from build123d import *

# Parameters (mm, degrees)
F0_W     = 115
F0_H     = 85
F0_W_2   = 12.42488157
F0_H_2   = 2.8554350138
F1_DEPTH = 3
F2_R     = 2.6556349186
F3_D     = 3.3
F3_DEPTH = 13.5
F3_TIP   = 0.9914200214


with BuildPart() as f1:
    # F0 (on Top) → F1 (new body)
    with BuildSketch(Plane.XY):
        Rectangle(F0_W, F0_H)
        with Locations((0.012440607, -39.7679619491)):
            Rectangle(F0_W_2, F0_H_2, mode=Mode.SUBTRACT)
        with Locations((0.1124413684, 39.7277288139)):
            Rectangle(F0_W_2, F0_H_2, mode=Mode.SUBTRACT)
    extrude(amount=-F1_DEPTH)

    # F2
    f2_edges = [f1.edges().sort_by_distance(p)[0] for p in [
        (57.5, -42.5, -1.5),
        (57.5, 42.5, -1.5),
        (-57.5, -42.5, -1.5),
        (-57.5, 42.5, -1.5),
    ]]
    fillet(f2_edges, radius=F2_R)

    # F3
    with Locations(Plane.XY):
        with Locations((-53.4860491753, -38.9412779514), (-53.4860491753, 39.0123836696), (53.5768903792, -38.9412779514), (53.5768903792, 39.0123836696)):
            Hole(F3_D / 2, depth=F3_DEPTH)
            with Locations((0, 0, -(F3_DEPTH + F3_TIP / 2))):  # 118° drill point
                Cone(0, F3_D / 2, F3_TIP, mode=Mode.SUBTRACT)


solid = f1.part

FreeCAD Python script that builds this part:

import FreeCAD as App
import Part
import Sketcher
from FreeCAD import Vector


def edges_at(feature, points):
    """Names of the edges that pass closest to the given points."""
    edges = feature.Shape.Edges
    near = lambda p: min(range(len(edges)), key=lambda i: edges[i].distToShape(Part.Vertex(*p))[0])
    return sorted({f"Edge{near(p) + 1}" for p in points})


def add_polygon(sketch, points):
    """Adds a closed chain of lines whose ends are joined by coincident constraints."""
    first, n = sketch.GeometryCount, len(points)
    for a, b in zip(points, points[1:] + points[:1]):
        sketch.addGeometry(Part.LineSegment(App.Vector(*a, 0), App.Vector(*b, 0)), False)
    for i in range(n):
        sketch.addConstraint(Sketcher.Constraint("Coincident", first + i, 2, first + (i + 1) % n, 1))

doc = App.newDocument("Part")
body = doc.addObject("PartDesign::Body", "Body")

# Sketch on XY plane
sketch1 = body.newObject("Sketcher::SketchObject", "Sketch")
sketch1.AttachmentSupport = (doc.getObject("XY_Plane"), [""])
sketch1.MapMode = "FlatFace"
add_polygon(sketch1, [(-57.5, 42.5), (-57.5, -42.5), (57.5, -42.5), (57.5, 42.5)])  # lines 0-3
add_polygon(sketch1, [(6.2, -41.2), (-6.2, -41.2), (-6.2, -38.3), (6.2, -38.3)])  # lines 4-7
add_polygon(sketch1, [(6.3, 38.3), (-6.1, 38.3), (-6.1, 41.2), (6.3, 41.2)])  # lines 8-11
sketch1.addConstraint(Sketcher.Constraint("Vertical", 0))
sketch1.addConstraint(Sketcher.Constraint("Horizontal", 1))
sketch1.addConstraint(Sketcher.Constraint("Vertical", 2))
sketch1.addConstraint(Sketcher.Constraint("Horizontal", 3))
sketch1.addConstraint(Sketcher.Constraint("Horizontal", 4))
sketch1.addConstraint(Sketcher.Constraint("Vertical", 5))
sketch1.addConstraint(Sketcher.Constraint("Horizontal", 6))
sketch1.addConstraint(Sketcher.Constraint("Vertical", 7))
sketch1.addConstraint(Sketcher.Constraint("Horizontal", 8))
sketch1.addConstraint(Sketcher.Constraint("Vertical", 9))
sketch1.addConstraint(Sketcher.Constraint("Horizontal", 10))
sketch1.addConstraint(Sketcher.Constraint("Vertical", 11))
sketch1.addConstraint(Sketcher.Constraint("Symmetric", 0, 2, 2, 2, -1, 1))
sketch1.addConstraint(Sketcher.Constraint("Equal", 6, 8))
sketch1.addConstraint(Sketcher.Constraint("Equal", 7, 9))
sketch1.addConstraint(Sketcher.Constraint("DistanceX", 1, 1, 1, 2, 115.0))
sketch1.addConstraint(Sketcher.Constraint("DistanceY", 0, 2, 0, 1, 85.0))
sketch1.addConstraint(Sketcher.Constraint("DistanceX", 4, 2, -1, 1, 6.2))
sketch1.addConstraint(Sketcher.Constraint("DistanceX", 8, 2, -1, 1, 6.099999))
sketch1.addConstraint(Sketcher.Constraint("DistanceX", 4, 2, 4, 1, 12.424882))
sketch1.addConstraint(Sketcher.Constraint("DistanceY", 5, 1, 5, 2, 2.855435))
sketch1.addConstraint(Sketcher.Constraint("DistanceY", 4, 2, -1, 1, 41.195679))
sketch1.addConstraint(Sketcher.Constraint("DistanceY", -1, 1, 8, 2, 38.300011))
pad1 = body.newObject("PartDesign::Pad", "Pad")
pad1.Profile = sketch1
pad1.Length = 3
pad1.Reversed = True
doc.recompute()

fillet = body.newObject("PartDesign::Fillet", "Fillet")
fillet.Base = (pad1, edges_at(pad1, [
    (57.5, -42.5, -1.5),
    (57.5, 42.5, -1.5),
    (-57.5, -42.5, -1.5),
    (-57.5, 42.5, -1.5),
]))
fillet.Radius = 2.655635

# Sketch on XY plane
sketch2 = body.newObject("Sketcher::SketchObject", "Sketch001")
sketch2.AttachmentSupport = (doc.getObject("XY_Plane"), [""])
sketch2.MapMode = "FlatFace"
sketch2.addGeometry(Part.Circle(Vector(-53.5, -38.9, 0), Vector(0, 0, 1), 1.6), False)
sketch2.addGeometry(Part.Circle(Vector(-53.5, 39, 0), Vector(0, 0, 1), 1.6), False)
sketch2.addGeometry(Part.Circle(Vector(53.6, -38.9, 0), Vector(0, 0, 1), 1.6), False)
sketch2.addGeometry(Part.Circle(Vector(53.6, 39, 0), Vector(0, 0, 1), 1.6), False)
sketch2.addConstraint(Sketcher.Constraint("Equal", 0, 1))
sketch2.addConstraint(Sketcher.Constraint("Equal", 1, 2))
sketch2.addConstraint(Sketcher.Constraint("Equal", 2, 3))
sketch2.addConstraint(Sketcher.Constraint("Horizontal", 0, 3, 2, 3))
sketch2.addConstraint(Sketcher.Constraint("Horizontal", 1, 3, 3, 3))
sketch2.addConstraint(Sketcher.Constraint("Vertical", 0, 3, 1, 3))
sketch2.addConstraint(Sketcher.Constraint("Vertical", 2, 3, 3, 3))
sketch2.addConstraint(Sketcher.Constraint("Diameter", 0, 3.3))
sketch2.addConstraint(Sketcher.Constraint("DistanceX", 0, 3, -1, 1, 53.486049))
sketch2.addConstraint(Sketcher.Constraint("DistanceX", -1, 1, 2, 3, 53.57689))
sketch2.addConstraint(Sketcher.Constraint("DistanceY", 0, 3, 1, 3, 77.953662))
sketch2.addConstraint(Sketcher.Constraint("DistanceY", 0, 3, -1, 1, 38.941278))
doc.recompute()
hole = body.newObject("PartDesign::Hole", "Hole")
hole.Profile = sketch2
hole.ThreadType = "None"
hole.Diameter = 3.3
hole.DepthType = "Dimension"
hole.Depth = 13.5
hole.DrillPoint = "Angled"
hole.DrillPointAngle = 118

doc.recompute()
